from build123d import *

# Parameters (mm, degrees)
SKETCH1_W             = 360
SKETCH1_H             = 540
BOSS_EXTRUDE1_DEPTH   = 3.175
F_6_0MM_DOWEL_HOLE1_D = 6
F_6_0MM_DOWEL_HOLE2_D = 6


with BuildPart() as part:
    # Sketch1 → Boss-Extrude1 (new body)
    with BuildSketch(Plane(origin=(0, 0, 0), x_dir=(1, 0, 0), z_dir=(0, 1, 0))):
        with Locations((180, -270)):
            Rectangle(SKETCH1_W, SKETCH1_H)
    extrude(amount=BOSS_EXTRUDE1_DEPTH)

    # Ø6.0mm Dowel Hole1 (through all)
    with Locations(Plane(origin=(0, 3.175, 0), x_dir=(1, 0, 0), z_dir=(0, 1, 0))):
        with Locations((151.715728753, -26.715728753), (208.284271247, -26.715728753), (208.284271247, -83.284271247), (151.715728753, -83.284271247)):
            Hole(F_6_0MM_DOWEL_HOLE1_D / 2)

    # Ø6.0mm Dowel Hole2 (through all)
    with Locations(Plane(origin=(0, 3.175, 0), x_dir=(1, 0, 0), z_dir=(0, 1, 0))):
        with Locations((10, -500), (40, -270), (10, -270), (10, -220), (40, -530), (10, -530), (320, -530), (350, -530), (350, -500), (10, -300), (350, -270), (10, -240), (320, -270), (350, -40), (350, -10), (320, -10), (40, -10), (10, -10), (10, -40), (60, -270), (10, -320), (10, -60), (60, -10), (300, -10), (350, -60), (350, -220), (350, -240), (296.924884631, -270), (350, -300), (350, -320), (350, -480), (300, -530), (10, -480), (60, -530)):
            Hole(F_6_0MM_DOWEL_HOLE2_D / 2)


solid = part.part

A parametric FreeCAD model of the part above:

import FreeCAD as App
import Part
import Sketcher

V = App.Vector
Q = App.Units.Quantity

doc = App.newDocument("Part")
body = doc.addObject("PartDesign::Body", "Body")

sketch1 = body.newObject("Sketcher::SketchObject", "Sketch")
sketch1.AttachmentSupport = (doc.getObject("XZ_Plane"), [""])
sketch1.MapMode = "FlatFace"
sketch1.addGeometry(Part.LineSegment(V(0, 0, 0), V(0, 540, 0)), False)
sketch1.addGeometry(Part.LineSegment(V(0, 540, 0), V(360, 540, 0)), False)
sketch1.addGeometry(Part.LineSegment(V(360, 540, 0), V(360, 0, 0)), False)
sketch1.addGeometry(Part.LineSegment(V(360, 0, 0), V(0, 0, 0)), False)
sketch1.addConstraint(Sketcher.Constraint("Coincident", 0, 2, 1, 1))
sketch1.addConstraint(Sketcher.Constraint("Coincident", 1, 2, 2, 1))
sketch1.addConstraint(Sketcher.Constraint("Coincident", 2, 2, 3, 1))
sketch1.addConstraint(Sketcher.Constraint("Coincident", 3, 2, 0, 1))
sketch1.addConstraint(Sketcher.Constraint("Vertical", 0))
sketch1.addConstraint(Sketcher.Constraint("Horizontal", 1))
sketch1.addConstraint(Sketcher.Constraint("Vertical", 2))
sketch1.addConstraint(Sketcher.Constraint("Horizontal", 3))
sketch1.addConstraint(Sketcher.Constraint("Coincident", 3, 2, -1, 1))
sketch1.addConstraint(Sketcher.Constraint("DistanceX", 1, 1, 1, 2, Q("360 mm")))
sketch1.addConstraint(Sketcher.Constraint("DistanceY", 0, 1, 0, 2, Q("540 mm")))
pad1 = body.newObject("PartDesign::Pad", "Pad")
pad1.Profile = sketch1
pad1.Length = 3.175
pad1.Reversed = True

sketch2 = body.newObject("Sketcher::SketchObject", "Sketch001")
sketch2.AttachmentSupport = (doc.getObject("XZ_Plane"), [""])
sketch2.MapMode = "FlatFace"
sketch2.AttachmentOffset = App.Placement(V(0, 0, -3.175), App.Rotation())
sketch2.addGeometry(Part.Circle(V(151.715729, 26.715729, 0), V(0, 0, 1), 3), False)
sketch2.addGeometry(Part.Circle(V(208.284271, 26.715729, 0), V(0, 0, 1), 3), False)
sketch2.addGeometry(Part.Circle(V(208.284271, 83.284271, 0), V(0, 0, 1), 3), False)
sketch2.addGeometry(Part.Circle(V(151.715729, 83.284271, 0), V(0, 0, 1), 3), False)
sketch2.addConstraint(Sketcher.Constraint("Equal", 0, 1))
sketch2.addConstraint(Sketcher.Constraint("Equal", 1, 2))
sketch2.addConstraint(Sketcher.Constraint("Equal", 2, 3))
sketch2.addConstraint(Sketcher.Constraint("Horizontal", 0, 3, 1, 3))
sketch2.addConstraint(Sketcher.Constraint("Horizontal", 2, 3, 3, 3))
sketch2.addConstraint(Sketcher.Constraint("Vertical", 1, 3, 2, 3))
sketch2.addConstraint(Sketcher.Constraint("Vertical", 0, 3, 3, 3))
sketch2.addConstraint(Sketcher.Constraint("Diameter", 0, Q("6 mm")))
sketch2.addConstraint(Sketcher.Constraint("DistanceX", -1, 1, 0, 3, Q("151.715729 mm")))
sketch2.addConstraint(Sketcher.Constraint("DistanceY", -1, 1, 0, 3, Q("26.715729 mm")))
sketch2.addConstraint(Sketcher.Constraint("DistanceX", -1, 1, 1, 3, Q("208.284271 mm")))
sketch2.addConstraint(Sketcher.Constraint("DistanceY", -1, 1, 2, 3, Q("83.284271 mm")))
doc.recompute()
hole = body.newObject("PartDesign::Hole", "Hole")
hole.Profile = sketch2
hole.ThreadType = "None"
hole.Diameter = 6
hole.DepthType = "ThroughAll"
hole.Reversed = True

sketch3 = body.newObject("Sketcher::SketchObject", "Sketch002")
sketch3.AttachmentSupport = (doc.getObject("XZ_Plane"), [""])
sketch3.MapMode = "FlatFace"
sketch3.AttachmentOffset = App.Placement(V(0, 0, -3.175), App.Rotation())
sketch3.addGeometry(Part.Circle(V(10, 500, 0), V(0, 0, 1), 3), False)
sketch3.addGeometry(Part.Circle(V(40, 270, 0), V(0, 0, 1), 3), False)
sketch3.addGeometry(Part.Circle(V(10, 270, 0), V(0, 0, 1), 3), False)
sketch3.addGeometry(Part.Circle(V(10, 220, 0), V(0, 0, 1), 3), False)
sketch3.addGeometry(Part.Circle(V(40, 530, 0), V(0, 0, 1), 3), False)
sketch3.addGeometry(Part.Circle(V(10, 530, 0), V(0, 0, 1), 3), False)
sketch3.addGeometry(Part.Circle(V(320, 530, 0), V(0, 0, 1), 3), False)
sketch3.addGeometry(Part.Circle(V(350, 530, 0), V(0, 0, 1), 3), False)
sketch3.addGeometry(Part.Circle(V(350, 500, 0), V(0, 0, 1), 3), False)
sketch3.addGeometry(Part.Circle(V(10, 300, 0), V(0, 0, 1), 3), False)
sketch3.addGeometry(Part.Circle(V(350, 270, 0), V(0, 0, 1), 3), False)
sketch3.addGeometry(Part.Circle(V(10, 240, 0), V(0, 0, 1), 3), False)
sketch3.addGeometry(Part.Circle(V(320, 270, 0), V(0, 0, 1), 3), False)
sketch3.addGeometry(Part.Circle(V(350, 40, 0), V(0, 0, 1), 3), False)
sketch3.addGeometry(Part.Circle(V(350, 10, 0), V(0, 0, 1), 3), False)
sketch3.addGeometry(Part.Circle(V(320, 10, 0), V(0, 0, 1), 3), False)
sketch3.addGeometry(Part.Circle(V(40, 10, 0), V(0, 0, 1), 3), False)
sketch3.addGeometry(Part.Circle(V(10, 10, 0), V(0, 0, 1), 3), False)
sketch3.addGeometry(Part.Circle(V(10, 40, 0), V(0, 0, 1), 3), False)
sketch3.addGeometry(Part.Circle(V(60, 270, 0), V(0, 0, 1), 3), False)
sketch3.addGeometry(Part.Circle(V(10, 320, 0), V(0, 0, 1), 3), False)
sketch3.addGeometry(Part.Circle(V(10, 60, 0), V(0, 0, 1), 3), False)
sketch3.addGeometry(Part.Circle(V(60, 10, 0), V(0, 0, 1), 3), False)
sketch3.addGeometry(Part.Circle(V(300, 10, 0), V(0, 0, 1), 3), False)
sketch3.addGeometry(Part.Circle(V(350, 60, 0), V(0, 0, 1), 3), False)
sketch3.addGeometry(Part.Circle(V(350, 220, 0), V(0, 0, 1), 3), False)
sketch3.addGeometry(Part.Circle(V(350, 240, 0), V(0, 0, 1), 3), False)
sketch3.addGeometry(Part.Circle(V(296.924885, 270, 0), V(0, 0, 1), 3), False)
sketch3.addGeometry(Part.Circle(V(350, 300, 0), V(0, 0, 1), 3), False)
sketch3.addGeometry(Part.Circle(V(350, 320, 0), V(0, 0, 1), 3), False)
sketch3.addGeometry(Part.Circle(V(350, 480, 0), V(0, 0, 1), 3), False)
sketch3.addGeometry(Part.Circle(V(300, 530, 0), V(0, 0, 1), 3), False)
sketch3.addGeometry(Part.Circle(V(10, 480, 0), V(0, 0, 1), 3), False)
sketch3.addGeometry(Part.Circle(V(60, 530, 0), V(0, 0, 1), 3), False)
sketch3.addConstraint(Sketcher.Constraint("Equal", 0, 1))
sketch3.addConstraint(Sketcher.Constraint("Equal", 1, 2))
sketch3.addConstraint(Sketcher.Constraint("Equal", 2, 3))
sketch3.addConstraint(Sketcher.Constraint("Equal", 3, 4))
sketch3.addConstraint(Sketcher.Constraint("Equal", 4, 5))
sketch3.addConstraint(Sketcher.Constraint("Equal", 5, 6))
sketch3.addConstraint(Sketcher.Constraint("Equal", 6, 7))
sketch3.addConstraint(Sketcher.Constraint("Equal", 7, 8))
sketch3.addConstraint(Sketcher.Constraint("Equal", 8, 9))
sketch3.addConstraint(Sketcher.Constraint("Equal", 9, 10))
sketch3.addConstraint(Sketcher.Constraint("Equal", 10, 11))
sketch3.addConstraint(Sketcher.Constraint("Equal", 11, 12))
sketch3.addConstraint(Sketcher.Constraint("Equal", 12, 13))
sketch3.addConstraint(Sketcher.Constraint("Equal", 13, 14))
sketch3.addConstraint(Sketcher.Constraint("Equal", 14, 15))
sketch3.addConstraint(Sketcher.Constraint("Equal", 15, 16))
sketch3.addConstraint(Sketcher.Constraint("Equal", 16, 17))
sketch3.addConstraint(Sketcher.Constraint("Equal", 17, 18))
sketch3.addConstraint(Sketcher.Constraint("Equal", 18, 19))
sketch3.addConstraint(Sketcher.Constraint("Equal", 19, 20))
sketch3.addConstraint(Sketcher.Constraint("Equal", 20, 21))
sketch3.addConstraint(Sketcher.Constraint("Equal", 21, 22))
sketch3.addConstraint(Sketcher.Constraint("Equal", 22, 23))
sketch3.addConstraint(Sketcher.Constraint("Equal", 23, 24))
sketch3.addConstraint(Sketcher.Constraint("Equal", 24, 25))
sketch3.addConstraint(Sketcher.Constraint("Equal", 25, 26))
sketch3.addConstraint(Sketcher.Constraint("Equal", 26, 27))
sketch3.addConstraint(Sketcher.Constraint("Equal", 27, 28))
sketch3.addConstraint(Sketcher.Constraint("Equal", 28, 29))
sketch3.addConstraint(Sketcher.Constraint("Equal", 29, 30))
sketch3.addConstraint(Sketcher.Constraint("Equal", 30, 31))
sketch3.addConstraint(Sketcher.Constraint("Equal", 31, 32))
sketch3.addConstraint(Sketcher.Constraint("Equal", 32, 33))
sketch3.addConstraint(Sketcher.Constraint("Horizontal", 1, 3, 2, 3))
sketch3.addConstraint(Sketcher.Constraint("Horizontal", 4, 3, 5, 3))
sketch3.addConstraint(Sketcher.Constraint("Horizontal", 5, 3, 6, 3))
sketch3.addConstraint(Sketcher.Constraint("Horizontal", 6, 3, 7, 3))
sketch3.addConstraint(Sketcher.Constraint("Horizontal", 0, 3, 8, 3))
sketch3.addConstraint(Sketcher.Constraint("Horizontal", 2, 3, 10, 3))
sketch3.addConstraint(Sketcher.Constraint("Horizontal", 10, 3, 12, 3))
sketch3.addConstraint(Sketcher.Constraint("Horizontal", 14, 3, 15, 3))
sketch3.addConstraint(Sketcher.Constraint("Horizontal", 15, 3, 16, 3))
sketch3.addConstraint(Sketcher.Constraint("Horizontal", 16, 3, 17, 3))
sketch3.addConstraint(Sketcher.Constraint("Horizontal", 13, 3, 18, 3))
sketch3.addConstraint(Sketcher.Constraint("Horizontal", 12, 3, 19, 3))
sketch3.addConstraint(Sketcher.Constraint("Horizontal", 17, 3, 22, 3))
sketch3.addConstraint(Sketcher.Constraint("Horizontal", 22, 3, 23, 3))
sketch3.addConstraint(Sketcher.Constraint("Horizontal", 21, 3, 24, 3))
sketch3.addConstraint(Sketcher.Constraint("Horizontal", 3, 3, 25, 3))
sketch3.addConstraint(Sketcher.Constraint("Horizontal", 11, 3, 26, 3))
sketch3.addConstraint(Sketcher.Constraint("Horizontal", 19, 3, 27, 3))
sketch3.addConstraint(Sketcher.Constraint("Horizontal", 9, 3, 28, 3))
sketch3.addConstraint(Sketcher.Constraint("Horizontal", 20, 3, 29, 3))
sketch3.addConstraint(Sketcher.Constraint("Horizontal", 7, 3, 31, 3))
sketch3.addConstraint(Sketcher.Constraint("Horizontal", 30, 3, 32, 3))
sketch3.addConstraint(Sketcher.Constraint("Horizontal", 31, 3, 33, 3))
sketch3.addConstraint(Sketcher.Constraint("Vertical", 0, 3, 2, 3))
sketch3.addConstraint(Sketcher.Constraint("Vertical", 2, 3, 3, 3))
sketch3.addConstraint(Sketcher.Constraint("Vertical", 1, 3, 4, 3))
sketch3.addConstraint(Sketcher.Constraint("Vertical", 3, 3, 5, 3))
sketch3.addConstraint(Sketcher.Constraint("Vertical", 7, 3, 8, 3))
sketch3.addConstraint(Sketcher.Constraint("Vertical", 5, 3, 9, 3))
sketch3.addConstraint(Sketcher.Constraint("Vertical", 8, 3, 10, 3))
sketch3.addConstraint(Sketcher.Constraint("Vertical", 9, 3, 11, 3))
sketch3.addConstraint(Sketcher.Constraint("Vertical", 6, 3, 12, 3))
sketch3.addConstraint(Sketcher.Constraint("Vertical", 10, 3, 13, 3))
sketch3.addConstraint(Sketcher.Constraint("Vertical", 13, 3, 14, 3))
sketch3.addConstraint(Sketcher.Constraint("Vertical", 12, 3, 15, 3))
sketch3.addConstraint(Sketcher.Constraint("Vertical", 4, 3, 16, 3))
sketch3.addConstraint(Sketcher.Constraint("Vertical", 11, 3, 17, 3))
sketch3.addConstraint(Sketcher.Constraint("Vertical", 17, 3, 18, 3))
sketch3.addConstraint(Sketcher.Constraint("Vertical", 18, 3, 20, 3))
sketch3.addConstraint(Sketcher.Constraint("Vertical", 20, 3, 21, 3))
sketch3.addConstraint(Sketcher.Constraint("Vertical", 19, 3, 22, 3))
sketch3.addConstraint(Sketcher.Constraint("Vertical", 14, 3, 24, 3))
sketch3.addConstraint(Sketcher.Constraint("Vertical", 24, 3, 25, 3))
sketch3.addConstraint(Sketcher.Constraint("Vertical", 25, 3, 26, 3))
sketch3.addConstraint(Sketcher.Constraint("Vertical", 26, 3, 28, 3))
sketch3.addConstraint(Sketcher.Constraint("Vertical", 28, 3, 29, 3))
sketch3.addConstraint(Sketcher.Constraint("Vertical", 29, 3, 30, 3))
sketch3.addConstraint(Sketcher.Constraint("Vertical", 23, 3, 31, 3))
sketch3.addConstraint(Sketcher.Constraint("Vertical", 21, 3, 32, 3))
sketch3.addConstraint(Sketcher.Constraint("Vertical", 22, 3, 33, 3))
sketch3.addConstraint(Sketcher.Constraint("Diameter", 0, Q("6 mm")))
sketch3.addConstraint(Sketcher.Constraint("DistanceX", -1, 1, 0, 3, Q("10 mm")))
sketch3.addConstraint(Sketcher.Constraint("DistanceY", -1, 1, 0, 3, Q("500 mm")))
sketch3.addConstraint(Sketcher.Constraint("DistanceX", -1, 1, 1, 3, Q("40 mm")))
sketch3.addConstraint(Sketcher.Constraint("DistanceY", -1, 1, 1, 3, Q("270 mm")))
sketch3.addConstraint(Sketcher.Constraint("DistanceY", -1, 1, 3, 3, Q("220 mm")))
sketch3.addConstraint(Sketcher.Constraint("DistanceY", -1, 1, 4, 3, Q("530 mm")))
sketch3.addConstraint(Sketcher.Constraint("DistanceX", -1, 1, 6, 3, Q("320 mm")))
sketch3.addConstraint(Sketcher.Constraint("DistanceX", -1, 1, 7, 3, Q("350 mm")))
sketch3.addConstraint(Sketcher.Constraint("DistanceY", -1, 1, 9, 3, Q("300 mm")))
sketch3.addConstraint(Sketcher.Constraint("DistanceY", -1, 1, 11, 3, Q("240 mm")))
sketch3.addConstraint(Sketcher.Constraint("DistanceY", -1, 1, 13, 3, Q("40 mm")))
sketch3.addConstraint(Sketcher.Constraint("DistanceY", -1, 1, 14, 3, Q("10 mm")))
sketch3.addConstraint(Sketcher.Constraint("DistanceX", -1, 1, 19, 3, Q("60 mm")))
sketch3.addConstraint(Sketcher.Constraint("DistanceY", -1, 1, 20, 3, Q("320 mm")))
sketch3.addConstraint(Sketcher.Constraint("DistanceY", -1, 1, 21, 3, Q("60 mm")))
sketch3.addConstraint(Sketcher.Constraint("DistanceX", -1, 1, 23, 3, Q("300 mm")))
sketch3.addConstraint(Sketcher.Constraint("DistanceY", -1, 1, 30, 3, Q("480 mm")))
sketch3.addConstraint(Sketcher.Constraint("DistanceX", -1, 1, 27, 3, Q("296.924885 mm")))
doc.recompute()
hole2 = body.newObject("PartDesign::Hole", "Hole001")
hole2.Profile = sketch3
hole2.ThreadType = "None"
hole2.Diameter = 6
hole2.DepthType = "ThroughAll"
hole2.Reversed = True

doc.recompute()
